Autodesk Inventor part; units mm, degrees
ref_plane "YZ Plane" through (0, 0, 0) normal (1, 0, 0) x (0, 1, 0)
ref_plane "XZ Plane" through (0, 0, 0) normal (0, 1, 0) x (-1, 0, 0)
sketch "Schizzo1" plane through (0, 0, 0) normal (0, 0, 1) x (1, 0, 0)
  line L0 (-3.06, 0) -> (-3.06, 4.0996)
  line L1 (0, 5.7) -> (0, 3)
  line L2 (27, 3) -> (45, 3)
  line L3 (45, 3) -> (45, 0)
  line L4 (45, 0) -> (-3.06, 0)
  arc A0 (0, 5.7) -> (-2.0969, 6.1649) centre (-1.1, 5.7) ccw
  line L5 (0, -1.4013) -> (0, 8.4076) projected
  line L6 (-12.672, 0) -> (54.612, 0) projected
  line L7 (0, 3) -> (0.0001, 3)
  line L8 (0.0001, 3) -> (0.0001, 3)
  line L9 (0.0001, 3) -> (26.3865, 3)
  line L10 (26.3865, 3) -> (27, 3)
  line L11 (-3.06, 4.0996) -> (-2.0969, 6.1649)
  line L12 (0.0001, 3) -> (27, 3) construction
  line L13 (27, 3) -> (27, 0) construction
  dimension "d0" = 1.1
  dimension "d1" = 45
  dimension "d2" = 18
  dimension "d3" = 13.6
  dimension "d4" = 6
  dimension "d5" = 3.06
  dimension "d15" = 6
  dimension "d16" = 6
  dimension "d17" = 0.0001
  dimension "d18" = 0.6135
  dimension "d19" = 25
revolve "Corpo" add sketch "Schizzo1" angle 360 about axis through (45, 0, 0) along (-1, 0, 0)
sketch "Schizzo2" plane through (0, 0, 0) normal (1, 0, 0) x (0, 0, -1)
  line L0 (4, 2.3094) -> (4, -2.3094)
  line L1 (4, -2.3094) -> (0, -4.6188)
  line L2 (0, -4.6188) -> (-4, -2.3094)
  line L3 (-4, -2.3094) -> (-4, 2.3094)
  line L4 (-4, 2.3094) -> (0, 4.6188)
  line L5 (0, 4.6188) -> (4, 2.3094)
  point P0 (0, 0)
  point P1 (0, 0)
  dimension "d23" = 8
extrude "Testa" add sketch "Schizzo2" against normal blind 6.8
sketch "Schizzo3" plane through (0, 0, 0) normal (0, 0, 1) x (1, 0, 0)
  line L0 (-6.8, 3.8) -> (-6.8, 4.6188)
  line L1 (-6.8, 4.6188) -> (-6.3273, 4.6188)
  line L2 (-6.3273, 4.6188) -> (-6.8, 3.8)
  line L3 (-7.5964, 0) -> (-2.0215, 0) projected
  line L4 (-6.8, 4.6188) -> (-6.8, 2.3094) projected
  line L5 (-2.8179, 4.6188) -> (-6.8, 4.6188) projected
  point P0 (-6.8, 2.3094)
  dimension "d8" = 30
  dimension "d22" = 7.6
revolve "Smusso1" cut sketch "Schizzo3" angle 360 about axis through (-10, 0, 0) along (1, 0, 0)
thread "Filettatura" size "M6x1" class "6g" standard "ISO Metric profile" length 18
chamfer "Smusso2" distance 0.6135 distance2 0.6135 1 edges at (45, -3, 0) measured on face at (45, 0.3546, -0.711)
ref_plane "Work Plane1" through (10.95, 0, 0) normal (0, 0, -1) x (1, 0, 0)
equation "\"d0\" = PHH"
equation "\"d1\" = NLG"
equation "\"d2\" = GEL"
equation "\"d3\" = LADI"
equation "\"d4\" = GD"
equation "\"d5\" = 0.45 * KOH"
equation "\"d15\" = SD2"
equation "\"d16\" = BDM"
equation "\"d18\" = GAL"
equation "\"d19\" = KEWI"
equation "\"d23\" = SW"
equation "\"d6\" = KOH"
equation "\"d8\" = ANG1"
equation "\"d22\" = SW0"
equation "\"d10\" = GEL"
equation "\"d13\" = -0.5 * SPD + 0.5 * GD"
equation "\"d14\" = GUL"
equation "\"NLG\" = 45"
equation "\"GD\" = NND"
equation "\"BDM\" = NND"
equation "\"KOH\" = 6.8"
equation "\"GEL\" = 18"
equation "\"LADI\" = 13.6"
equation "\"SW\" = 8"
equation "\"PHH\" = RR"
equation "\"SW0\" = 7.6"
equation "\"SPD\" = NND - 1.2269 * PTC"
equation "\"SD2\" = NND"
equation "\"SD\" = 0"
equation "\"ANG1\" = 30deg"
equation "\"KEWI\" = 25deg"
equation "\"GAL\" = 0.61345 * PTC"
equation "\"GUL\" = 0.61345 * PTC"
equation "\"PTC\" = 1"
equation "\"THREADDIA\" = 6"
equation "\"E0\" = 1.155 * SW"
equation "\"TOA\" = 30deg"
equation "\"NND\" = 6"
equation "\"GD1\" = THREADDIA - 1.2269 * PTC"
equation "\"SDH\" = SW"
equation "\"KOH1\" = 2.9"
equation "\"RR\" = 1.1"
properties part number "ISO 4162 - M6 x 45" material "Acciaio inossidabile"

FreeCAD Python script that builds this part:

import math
import FreeCAD as App
import Part
import Sketcher
from FreeCAD import Vector
Q = App.Units.Quantity


def edges_at(feature, points):
    """Names of the edges that pass closest to the given points."""
    edges = feature.Shape.Edges
    near = lambda p: min(range(len(edges)), key=lambda i: edges[i].distToShape(Part.Vertex(*p))[0])
    return sorted({f"Edge{near(p) + 1}" for p in points})

doc = App.newDocument("Part")
params = doc.addObject("Spreadsheet::Sheet", "Params")
for row, (alias, value) in enumerate([
    ("sketch1_radius", "1.1 mm"),
    ("sketch1_width", "45 mm"),
    ("sketch1_height", "3 mm"),
    ("sketch1_height2", "2.7 mm"),
    ("revolution_angle", "360 deg"),
    ("pad1_length", "6.8 mm"),
    ("groove_angle", "360 deg"),
    ("chamfer_size", "0.6135 mm"),
    ("chamfer_size2", "0.6135 mm"),
], start=1):
    params.set(f"A{row}", alias)
    params.set(f"B{row}", "=" + value)
    params.setAlias(f"B{row}", alias)

body = doc.addObject("PartDesign::Body", "Body")

sketch1 = body.newObject("Sketcher::SketchObject", "Sketch")
sketch1.AttachmentSupport = (doc.getObject("XY_Plane"), [""])
sketch1.MapMode = "FlatFace"
sketch1.addGeometry([
    Part.LineSegment(Vector(-3.06, 4.0996, 0), Vector(-3.06, 0, 0)),
    Part.LineSegment(Vector(-3.06, 0, 0), Vector(45, 0, 0)),
    Part.LineSegment(Vector(45, 0, 0), Vector(45, 3, 0)),
    Part.LineSegment(Vector(45, 3, 0), Vector(0, 3, 0)),
    Part.LineSegment(Vector(0, 3, 0), Vector(0, 5.7, 0)),
    Part.ArcOfCircle(Part.Circle(Vector(-1.1, 5.7, 0), Vector(0, 0, 1), 1.1), math.radians(0), math.radians(154.998211)),
    Part.LineSegment(Vector(-2.0969, 6.1649, 0), Vector(-3.06, 4.0996, 0)),
], False)
sketch1.addConstraint([
    Sketcher.Constraint("Coincident", 0, 2, 1, 1),
    Sketcher.Constraint("Coincident", 1, 2, 2, 1),
    Sketcher.Constraint("Coincident", 2, 2, 3, 1),
    Sketcher.Constraint("Coincident", 3, 2, 4, 1),
    Sketcher.Constraint("Tangent", 4, 2, 5, 1),
    Sketcher.Constraint("Tangent", 5, 2, 6, 1),
    Sketcher.Constraint("Coincident", 6, 2, 0, 1),
    Sketcher.Constraint("Vertical", 0),
    Sketcher.Constraint("Horizontal", 1),
    Sketcher.Constraint("Vertical", 2),
    Sketcher.Constraint("Horizontal", 3),
    Sketcher.Constraint("Vertical", 4),
    Sketcher.Constraint("PointOnObject", 0, 2, -1),
    Sketcher.Constraint("PointOnObject", 3, 2, -2),
    Sketcher.Constraint("Radius", 5, Q("1.1 mm")),
    Sketcher.Constraint("DistanceX", 3, 2, 3, 1, Q("45 mm")),
    Sketcher.Constraint("DistanceY", 2, 1, 2, 2, Q("3 mm")),
    Sketcher.Constraint("DistanceX", 0, 2, -1, 1, Q("3.06 mm")),
    Sketcher.Constraint("Angle", 6, Q("-115.0008 deg")),
    Sketcher.Constraint("DistanceY", 4, 1, 4, 2, Q("2.7 mm")),
])
sketch1.setExpression("Constraints[14]", "Params.sketch1_radius")
sketch1.setExpression("Constraints[15]", "Params.sketch1_width")
sketch1.setExpression("Constraints[16]", "Params.sketch1_height")
sketch1.setExpression("Constraints[19]", "Params.sketch1_height2")
revolution = body.newObject("PartDesign::Revolution", "Revolution")
revolution.Profile = sketch1
revolution.ReferenceAxis = (sketch1, ["H_Axis"])
revolution.setExpression("Angle", "Params.revolution_angle")

sketch2 = body.newObject("Sketcher::SketchObject", "Sketch001")
sketch2.AttachmentSupport = (doc.getObject("YZ_Plane"), [""])
sketch2.MapMode = "FlatFace"
sketch2.addGeometry([
    Part.LineSegment(Vector(-2.3094, -4, 0), Vector(2.3094, -4, 0)),
    Part.LineSegment(Vector(2.3094, -4, 0), Vector(4.6188, 0, 0)),
    Part.LineSegment(Vector(4.6188, 0, 0), Vector(2.3094, 4, 0)),
    Part.LineSegment(Vector(2.3094, 4, 0), Vector(-2.3094, 4, 0)),
    Part.LineSegment(Vector(-2.3094, 4, 0), Vector(-4.6188, 0, 0)),
    Part.LineSegment(Vector(-4.6188, 0, 0), Vector(-2.3094, -4, 0)),
], False)
sketch2.addConstraint([
    Sketcher.Constraint("Coincident", 0, 2, 1, 1),
    Sketcher.Constraint("Coincident", 1, 2, 2, 1),
    Sketcher.Constraint("Coincident", 2, 2, 3, 1),
    Sketcher.Constraint("Coincident", 3, 2, 4, 1),
    Sketcher.Constraint("Coincident", 4, 2, 5, 1),
    Sketcher.Constraint("Coincident", 5, 2, 0, 1),
    Sketcher.Constraint("Horizontal", 0),
    Sketcher.Constraint("Horizontal", 3),
    Sketcher.Constraint("Symmetric", 0, 2, 3, 2, -1, 1),
    Sketcher.Constraint("Symmetric", 1, 2, 4, 2, -1, 1),
    Sketcher.Constraint("PointOnObject", 1, 2, -1),
    Sketcher.Constraint("Parallel", 2, 5),
    Sketcher.Constraint("Vertical", 0, 2, 2, 2),
    Sketcher.Constraint("DistanceY", 0, 2, 2, 2, Q("8 mm")),
    Sketcher.Constraint("Angle", 1, Q("60 deg")),
    Sketcher.Constraint("DistanceX", 0, 1, 0, 2, Q("4.6188 mm")),
])
pad1 = body.newObject("PartDesign::Pad", "Pad")
pad1.Profile = sketch2
pad1.setExpression("Length", "Params.pad1_length")
pad1.Reversed = True

sketch3 = body.newObject("Sketcher::SketchObject", "Sketch002")
sketch3.AttachmentSupport = (doc.getObject("XY_Plane"), [""])
sketch3.MapMode = "FlatFace"
sketch3.addGeometry([
    Part.LineSegment(Vector(-6.8, 4.6188, 0), Vector(-6.8, 3.8, 0)),
    Part.LineSegment(Vector(-6.8, 3.8, 0), Vector(-6.3273, 4.6188, 0)),
    Part.LineSegment(Vector(-6.3273, 4.6188, 0), Vector(-6.8, 4.6188, 0)),
], False)
sketch3.addConstraint([
    Sketcher.Constraint("Coincident", 0, 2, 1, 1),
    Sketcher.Constraint("Coincident", 1, 2, 2, 1),
    Sketcher.Constraint("Coincident", 2, 2, 0, 1),
    Sketcher.Constraint("Vertical", 0),
    Sketcher.Constraint("Horizontal", 2),
    Sketcher.Constraint("DistanceX", 0, 2, -1, 1, Q("6.8 mm")),
    Sketcher.Constraint("DistanceY", -1, 1, 0, 2, Q("3.8 mm")),
    Sketcher.Constraint("DistanceX", 2, 2, 2, 1, Q("0.4727 mm")),
    Sketcher.Constraint("DistanceY", 0, 2, 0, 1, Q("0.8188 mm")),
])
groove = body.newObject("PartDesign::Groove", "Groove")
groove.Profile = sketch3
groove.ReferenceAxis = (sketch3, ["H_Axis"])
groove.setExpression("Angle", "Params.groove_angle")
doc.recompute()

chamfer = body.newObject("PartDesign::Chamfer", "Chamfer")
chamfer.Base = (groove, edges_at(groove, [(45, -3, 0)]))
chamfer.ChamferType = "Two distances"
chamfer.setExpression("Size", "Params.chamfer_size")
chamfer.setExpression("Size2", "Params.chamfer_size2")

doc.recompute()
